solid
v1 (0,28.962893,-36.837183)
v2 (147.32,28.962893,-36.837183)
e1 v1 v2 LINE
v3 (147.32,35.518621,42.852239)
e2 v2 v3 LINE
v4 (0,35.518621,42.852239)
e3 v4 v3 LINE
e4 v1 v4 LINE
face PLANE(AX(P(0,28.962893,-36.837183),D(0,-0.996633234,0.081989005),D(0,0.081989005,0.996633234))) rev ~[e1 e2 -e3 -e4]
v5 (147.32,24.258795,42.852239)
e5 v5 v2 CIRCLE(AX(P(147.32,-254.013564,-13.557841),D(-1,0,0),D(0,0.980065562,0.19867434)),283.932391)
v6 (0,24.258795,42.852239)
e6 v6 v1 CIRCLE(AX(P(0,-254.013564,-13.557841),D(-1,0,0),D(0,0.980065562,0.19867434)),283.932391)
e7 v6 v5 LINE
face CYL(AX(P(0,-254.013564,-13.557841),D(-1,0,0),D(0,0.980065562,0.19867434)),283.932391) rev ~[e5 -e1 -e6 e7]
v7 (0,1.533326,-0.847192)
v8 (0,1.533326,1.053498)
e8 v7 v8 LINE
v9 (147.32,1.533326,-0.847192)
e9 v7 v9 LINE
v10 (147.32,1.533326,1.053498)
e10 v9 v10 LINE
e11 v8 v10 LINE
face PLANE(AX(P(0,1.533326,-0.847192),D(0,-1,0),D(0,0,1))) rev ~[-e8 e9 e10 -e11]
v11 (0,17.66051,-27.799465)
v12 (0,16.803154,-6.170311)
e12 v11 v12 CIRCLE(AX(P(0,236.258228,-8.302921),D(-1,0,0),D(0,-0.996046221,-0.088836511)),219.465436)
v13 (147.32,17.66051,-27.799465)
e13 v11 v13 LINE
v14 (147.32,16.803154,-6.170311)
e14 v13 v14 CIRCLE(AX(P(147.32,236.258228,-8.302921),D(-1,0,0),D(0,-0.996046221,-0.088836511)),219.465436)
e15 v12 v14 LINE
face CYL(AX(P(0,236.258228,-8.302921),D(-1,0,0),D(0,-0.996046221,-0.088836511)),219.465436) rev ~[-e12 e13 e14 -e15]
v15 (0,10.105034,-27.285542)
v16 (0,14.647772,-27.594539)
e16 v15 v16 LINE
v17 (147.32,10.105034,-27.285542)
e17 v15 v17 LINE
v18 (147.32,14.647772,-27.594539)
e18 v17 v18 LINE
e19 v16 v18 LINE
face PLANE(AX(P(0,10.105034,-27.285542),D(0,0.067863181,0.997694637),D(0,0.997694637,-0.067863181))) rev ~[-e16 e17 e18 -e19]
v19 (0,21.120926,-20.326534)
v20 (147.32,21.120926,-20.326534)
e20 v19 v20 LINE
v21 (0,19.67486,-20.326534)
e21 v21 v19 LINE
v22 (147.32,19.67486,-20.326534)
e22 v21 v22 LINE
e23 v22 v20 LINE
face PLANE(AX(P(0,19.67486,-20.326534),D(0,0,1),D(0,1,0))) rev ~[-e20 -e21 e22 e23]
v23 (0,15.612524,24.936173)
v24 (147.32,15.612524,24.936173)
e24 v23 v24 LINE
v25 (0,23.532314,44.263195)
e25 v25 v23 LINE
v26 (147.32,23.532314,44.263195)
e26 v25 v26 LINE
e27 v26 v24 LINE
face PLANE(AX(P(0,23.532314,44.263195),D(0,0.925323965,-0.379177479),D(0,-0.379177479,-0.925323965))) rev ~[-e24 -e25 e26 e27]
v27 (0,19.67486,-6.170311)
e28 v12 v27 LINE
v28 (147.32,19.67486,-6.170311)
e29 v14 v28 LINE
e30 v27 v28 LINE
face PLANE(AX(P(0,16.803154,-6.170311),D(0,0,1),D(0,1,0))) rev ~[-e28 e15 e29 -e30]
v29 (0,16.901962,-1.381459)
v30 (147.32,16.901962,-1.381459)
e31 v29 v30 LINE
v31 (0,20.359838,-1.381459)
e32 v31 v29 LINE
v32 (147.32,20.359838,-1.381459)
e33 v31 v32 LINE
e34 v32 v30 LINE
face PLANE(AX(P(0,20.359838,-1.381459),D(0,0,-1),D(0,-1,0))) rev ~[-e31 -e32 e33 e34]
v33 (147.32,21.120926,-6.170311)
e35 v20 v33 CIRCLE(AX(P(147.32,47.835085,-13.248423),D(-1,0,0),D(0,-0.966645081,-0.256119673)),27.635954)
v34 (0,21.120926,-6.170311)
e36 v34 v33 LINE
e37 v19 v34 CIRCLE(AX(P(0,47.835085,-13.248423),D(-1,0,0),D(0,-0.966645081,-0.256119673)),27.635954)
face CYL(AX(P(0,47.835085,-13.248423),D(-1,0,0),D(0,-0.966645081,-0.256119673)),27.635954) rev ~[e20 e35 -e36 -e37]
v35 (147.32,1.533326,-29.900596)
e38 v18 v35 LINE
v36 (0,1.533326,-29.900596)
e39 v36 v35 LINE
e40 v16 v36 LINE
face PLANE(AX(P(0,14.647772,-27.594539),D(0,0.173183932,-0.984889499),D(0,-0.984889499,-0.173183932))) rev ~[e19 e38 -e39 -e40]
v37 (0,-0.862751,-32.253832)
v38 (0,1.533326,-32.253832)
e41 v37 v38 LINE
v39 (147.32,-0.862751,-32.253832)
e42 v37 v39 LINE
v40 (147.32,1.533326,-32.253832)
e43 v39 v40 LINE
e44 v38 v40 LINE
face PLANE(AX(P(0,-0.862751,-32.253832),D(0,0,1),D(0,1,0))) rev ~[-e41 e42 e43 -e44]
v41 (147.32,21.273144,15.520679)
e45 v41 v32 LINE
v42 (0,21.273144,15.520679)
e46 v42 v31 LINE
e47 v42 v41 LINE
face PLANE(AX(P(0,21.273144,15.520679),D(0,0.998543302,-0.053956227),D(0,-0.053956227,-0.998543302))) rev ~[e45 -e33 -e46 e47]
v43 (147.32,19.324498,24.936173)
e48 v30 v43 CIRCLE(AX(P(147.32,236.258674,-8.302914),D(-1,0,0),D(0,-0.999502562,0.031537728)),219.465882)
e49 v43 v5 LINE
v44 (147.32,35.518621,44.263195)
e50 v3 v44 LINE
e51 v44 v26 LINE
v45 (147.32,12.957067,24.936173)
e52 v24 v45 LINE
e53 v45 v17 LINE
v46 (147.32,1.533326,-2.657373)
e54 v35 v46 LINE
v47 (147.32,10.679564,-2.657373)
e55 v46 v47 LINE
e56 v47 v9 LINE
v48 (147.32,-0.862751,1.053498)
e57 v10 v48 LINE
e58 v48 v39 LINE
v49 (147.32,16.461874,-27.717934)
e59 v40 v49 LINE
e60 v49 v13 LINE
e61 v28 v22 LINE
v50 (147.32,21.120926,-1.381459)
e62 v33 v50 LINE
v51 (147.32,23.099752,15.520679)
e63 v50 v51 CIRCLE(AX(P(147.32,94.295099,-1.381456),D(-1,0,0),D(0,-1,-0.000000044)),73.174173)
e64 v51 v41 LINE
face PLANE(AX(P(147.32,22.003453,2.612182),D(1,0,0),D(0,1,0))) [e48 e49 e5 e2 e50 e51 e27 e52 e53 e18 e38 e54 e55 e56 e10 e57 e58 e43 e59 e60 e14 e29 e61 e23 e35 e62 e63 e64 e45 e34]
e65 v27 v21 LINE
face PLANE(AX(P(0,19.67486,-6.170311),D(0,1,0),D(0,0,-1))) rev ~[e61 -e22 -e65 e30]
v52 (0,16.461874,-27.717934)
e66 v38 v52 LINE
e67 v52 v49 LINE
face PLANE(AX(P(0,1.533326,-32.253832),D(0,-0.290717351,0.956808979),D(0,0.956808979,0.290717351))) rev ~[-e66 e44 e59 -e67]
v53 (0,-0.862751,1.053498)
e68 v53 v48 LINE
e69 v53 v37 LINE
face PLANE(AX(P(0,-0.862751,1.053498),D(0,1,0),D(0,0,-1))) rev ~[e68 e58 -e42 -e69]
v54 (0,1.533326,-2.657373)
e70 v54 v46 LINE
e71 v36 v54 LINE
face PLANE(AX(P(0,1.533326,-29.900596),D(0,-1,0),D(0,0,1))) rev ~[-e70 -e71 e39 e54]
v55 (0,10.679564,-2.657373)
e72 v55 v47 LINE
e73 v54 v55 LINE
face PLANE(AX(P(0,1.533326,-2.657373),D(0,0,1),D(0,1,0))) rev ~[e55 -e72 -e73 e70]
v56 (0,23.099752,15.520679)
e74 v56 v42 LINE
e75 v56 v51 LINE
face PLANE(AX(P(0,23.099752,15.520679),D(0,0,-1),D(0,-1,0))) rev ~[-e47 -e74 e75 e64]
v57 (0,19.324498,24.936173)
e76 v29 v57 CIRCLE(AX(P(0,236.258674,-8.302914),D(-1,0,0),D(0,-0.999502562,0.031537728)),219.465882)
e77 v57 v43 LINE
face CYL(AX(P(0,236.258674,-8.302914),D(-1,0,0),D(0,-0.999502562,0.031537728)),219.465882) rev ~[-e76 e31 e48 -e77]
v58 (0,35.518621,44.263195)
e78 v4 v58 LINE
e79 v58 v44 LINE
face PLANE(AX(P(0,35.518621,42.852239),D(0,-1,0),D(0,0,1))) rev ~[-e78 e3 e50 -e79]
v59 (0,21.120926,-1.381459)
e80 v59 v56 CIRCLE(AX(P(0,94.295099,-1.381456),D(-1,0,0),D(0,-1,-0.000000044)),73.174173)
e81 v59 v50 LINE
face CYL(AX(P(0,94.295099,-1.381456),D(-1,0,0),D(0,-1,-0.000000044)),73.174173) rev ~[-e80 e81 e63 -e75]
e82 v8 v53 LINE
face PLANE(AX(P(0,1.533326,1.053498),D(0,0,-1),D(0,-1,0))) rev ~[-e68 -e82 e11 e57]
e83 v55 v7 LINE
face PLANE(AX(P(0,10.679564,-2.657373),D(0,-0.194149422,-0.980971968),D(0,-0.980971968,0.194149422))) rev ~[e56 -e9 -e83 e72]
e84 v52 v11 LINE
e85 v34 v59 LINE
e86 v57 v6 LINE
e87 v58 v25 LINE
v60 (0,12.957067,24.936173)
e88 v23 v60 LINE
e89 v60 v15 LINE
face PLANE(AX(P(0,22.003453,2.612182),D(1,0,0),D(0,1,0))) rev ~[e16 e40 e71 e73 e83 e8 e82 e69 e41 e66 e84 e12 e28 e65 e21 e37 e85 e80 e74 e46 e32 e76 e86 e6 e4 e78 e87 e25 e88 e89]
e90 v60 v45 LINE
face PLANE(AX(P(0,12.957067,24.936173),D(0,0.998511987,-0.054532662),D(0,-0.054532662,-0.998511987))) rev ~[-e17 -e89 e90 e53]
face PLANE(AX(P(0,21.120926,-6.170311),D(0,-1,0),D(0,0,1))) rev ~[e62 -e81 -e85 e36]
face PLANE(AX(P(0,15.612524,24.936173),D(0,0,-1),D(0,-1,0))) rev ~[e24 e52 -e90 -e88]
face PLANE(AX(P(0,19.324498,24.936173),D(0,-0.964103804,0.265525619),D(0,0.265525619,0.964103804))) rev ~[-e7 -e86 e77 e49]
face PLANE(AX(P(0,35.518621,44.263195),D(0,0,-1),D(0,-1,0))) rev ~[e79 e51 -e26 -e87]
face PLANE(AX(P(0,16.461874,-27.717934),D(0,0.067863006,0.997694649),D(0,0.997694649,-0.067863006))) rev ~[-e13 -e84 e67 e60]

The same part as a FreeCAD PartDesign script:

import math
import FreeCAD as App
import Part
import Sketcher
from FreeCAD import Vector
Q = App.Units.Quantity

doc = App.newDocument("Part")
params = doc.addObject("Spreadsheet::Sheet", "Params")
for row, (alias, value) in enumerate([
    ("pad1_length", "5.8 in"),
], start=1):
    params.set(f"A{row}", alias)
    params.set(f"B{row}", "=" + value)
    params.setAlias(f"B{row}", alias)

body = doc.addObject("PartDesign::Body", "Body")

sketch1 = body.newObject("Sketcher::SketchObject", "Sketch")
sketch1.AttachmentSupport = (doc.getObject("YZ_Plane"), [""])
sketch1.MapMode = "FlatFace"
sketch1.addGeometry(Part.ArcOfCircle(Part.Circle(Vector(-254, -13.6, 0), Vector(0, 0, 1), 283.9), math.radians(-4.7), math.radians(11.46)), False)
sketch1.addGeometry(Part.LineSegment(Vector(29, -36.8, 0), Vector(35.5, 42.9, 0)), False)
sketch1.addGeometry(Part.LineSegment(Vector(35.5, 42.9, 0), Vector(35.5, 44.3, 0)), False)
sketch1.addGeometry(Part.LineSegment(Vector(35.5, 44.3, 0), Vector(23.5, 44.3, 0)), False)
sketch1.addGeometry(Part.LineSegment(Vector(23.5, 44.3, 0), Vector(15.6, 24.9, 0)), False)
sketch1.addGeometry(Part.LineSegment(Vector(15.6, 24.9, 0), Vector(13, 24.9, 0)), False)
sketch1.addGeometry(Part.LineSegment(Vector(13, 24.9, 0), Vector(10.1, -27.3, 0)), False)
sketch1.addGeometry(Part.LineSegment(Vector(10.1, -27.3, 0), Vector(14.6, -27.6, 0)), False)
sketch1.addGeometry(Part.LineSegment(Vector(14.6, -27.6, 0), Vector(1.5, -29.9, 0)), False)
sketch1.addGeometry(Part.LineSegment(Vector(1.5, -29.9, 0), Vector(1.5, -2.7, 0)), False)
sketch1.addGeometry(Part.LineSegment(Vector(1.5, -2.7, 0), Vector(10.7, -2.7, 0)), False)
sketch1.addGeometry(Part.LineSegment(Vector(10.7, -2.7, 0), Vector(1.5, -0.8, 0)), False)
sketch1.addGeometry(Part.LineSegment(Vector(1.5, -0.8, 0), Vector(1.5, 1.1, 0)), False)
sketch1.addGeometry(Part.LineSegment(Vector(1.5, 1.1, 0), Vector(-0.9, 1.1, 0)), False)
sketch1.addGeometry(Part.LineSegment(Vector(-0.9, 1.1, 0), Vector(-0.9, -32.3, 0)), False)
sketch1.addGeometry(Part.LineSegment(Vector(-0.9, -32.3, 0), Vector(1.5, -32.3, 0)), False)
sketch1.addGeometry(Part.LineSegment(Vector(1.5, -32.3, 0), Vector(16.5, -27.7, 0)), False)
sketch1.addGeometry(Part.LineSegment(Vector(16.5, -27.7, 0), Vector(17.7, -27.8, 0)), False)
sketch1.addGeometry(Part.ArcOfCircle(Part.Circle(Vector(236.3, -8.3, 0), Vector(0, 0, 1), 219.5), math.radians(179.44), math.radians(185.1)), False)
sketch1.addGeometry(Part.LineSegment(Vector(16.8, -6.2, 0), Vector(19.7, -6.2, 0)), False)
sketch1.addGeometry(Part.LineSegment(Vector(19.7, -6.2, 0), Vector(19.7, -20.3, 0)), False)
sketch1.addGeometry(Part.LineSegment(Vector(19.7, -20.3, 0), Vector(21.1, -20.3, 0)), False)
sketch1.addGeometry(Part.ArcOfCircle(Part.Circle(Vector(47.8, -13.2, 0), Vector(0, 0, 1), 27.6), math.radians(165), math.radians(195)), False)
sketch1.addGeometry(Part.LineSegment(Vector(21.1, -6.2, 0), Vector(21.1, -1.4, 0)), False)
sketch1.addGeometry(Part.ArcOfCircle(Part.Circle(Vector(94.3, -1.4, 0), Vector(0, 0, 1), 73.2), math.radians(166.64), math.radians(180)), False)
sketch1.addGeometry(Part.LineSegment(Vector(23.1, 15.5, 0), Vector(21.3, 15.5, 0)), False)
sketch1.addGeometry(Part.LineSegment(Vector(21.3, 15.5, 0), Vector(20.4, -1.4, 0)), False)
sketch1.addGeometry(Part.LineSegment(Vector(20.4, -1.4, 0), Vector(16.9, -1.4, 0)), False)
sketch1.addGeometry(Part.ArcOfCircle(Part.Circle(Vector(236.3, -8.3, 0), Vector(0, 0, 1), 219.5), math.radians(171.29), math.radians(178.19)), False)
sketch1.addGeometry(Part.LineSegment(Vector(19.3, 24.9, 0), Vector(24.3, 42.9, 0)), False)
sketch1.addConstraint(Sketcher.Constraint("Tangent", 0, 1, 1, 1))
sketch1.addConstraint(Sketcher.Constraint("Coincident", 1, 2, 2, 1))
sketch1.addConstraint(Sketcher.Constraint("Coincident", 2, 2, 3, 1))
sketch1.addConstraint(Sketcher.Constraint("Coincident", 3, 2, 4, 1))
sketch1.addConstraint(Sketcher.Constraint("Coincident", 4, 2, 5, 1))
sketch1.addConstraint(Sketcher.Constraint("Coincident", 5, 2, 6, 1))
sketch1.addConstraint(Sketcher.Constraint("Coincident", 6, 2, 7, 1))
sketch1.addConstraint(Sketcher.Constraint("Coincident", 7, 2, 8, 1))
sketch1.addConstraint(Sketcher.Constraint("Coincident", 8, 2, 9, 1))
sketch1.addConstraint(Sketcher.Constraint("Coincident", 9, 2, 10, 1))
sketch1.addConstraint(Sketcher.Constraint("Coincident", 10, 2, 11, 1))
sketch1.addConstraint(Sketcher.Constraint("Coincident", 11, 2, 12, 1))
sketch1.addConstraint(Sketcher.Constraint("Coincident", 12, 2, 13, 1))
sketch1.addConstraint(Sketcher.Constraint("Coincident", 13, 2, 14, 1))
sketch1.addConstraint(Sketcher.Constraint("Coincident", 14, 2, 15, 1))
sketch1.addConstraint(Sketcher.Constraint("Coincident", 15, 2, 16, 1))
sketch1.addConstraint(Sketcher.Constraint("Coincident", 16, 2, 17, 1))
sketch1.addConstraint(Sketcher.Constraint("Coincident", 17, 2, 18, 2))
sketch1.addConstraint(Sketcher.Constraint("Coincident", 18, 1, 19, 1))
sketch1.addConstraint(Sketcher.Constraint("Coincident", 19, 2, 20, 1))
sketch1.addConstraint(Sketcher.Constraint("Coincident", 20, 2, 21, 1))
sketch1.addConstraint(Sketcher.Constraint("Coincident", 21, 2, 22, 2))
sketch1.addConstraint(Sketcher.Constraint("Coincident", 22, 1, 23, 1))
sketch1.addConstraint(Sketcher.Constraint("Tangent", 23, 2, 24, 2))
sketch1.addConstraint(Sketcher.Constraint("Coincident", 24, 1, 25, 1))
sketch1.addConstraint(Sketcher.Constraint("Coincident", 25, 2, 26, 1))
sketch1.addConstraint(Sketcher.Constraint("Coincident", 26, 2, 27, 1))
sketch1.addConstraint(Sketcher.Constraint("Coincident", 27, 2, 28, 2))
sketch1.addConstraint(Sketcher.Constraint("Coincident", 28, 1, 29, 1))
sketch1.addConstraint(Sketcher.Constraint("Coincident", 29, 2, 0, 2))
sketch1.addConstraint(Sketcher.Constraint("Vertical", 2))
sketch1.addConstraint(Sketcher.Constraint("Horizontal", 3))
sketch1.addConstraint(Sketcher.Constraint("Horizontal", 5))
sketch1.addConstraint(Sketcher.Constraint("Vertical", 9))
sketch1.addConstraint(Sketcher.Constraint("Horizontal", 10))
sketch1.addConstraint(Sketcher.Constraint("Vertical", 12))
sketch1.addConstraint(Sketcher.Constraint("Horizontal", 13))
sketch1.addConstraint(Sketcher.Constraint("Vertical", 14))
sketch1.addConstraint(Sketcher.Constraint("Horizontal", 15))
sketch1.addConstraint(Sketcher.Constraint("Horizontal", 19))
sketch1.addConstraint(Sketcher.Constraint("Vertical", 20))
sketch1.addConstraint(Sketcher.Constraint("Horizontal", 21))
sketch1.addConstraint(Sketcher.Constraint("Vertical", 23))
sketch1.addConstraint(Sketcher.Constraint("Horizontal", 25))
sketch1.addConstraint(Sketcher.Constraint("Horizontal", 27))
sketch1.addConstraint(Sketcher.Constraint("Parallel", 7, 17))
sketch1.addConstraint(Sketcher.Constraint("Horizontal", 19, 2, 22, 1))
sketch1.addConstraint(Sketcher.Constraint("Horizontal", 23, 2, 26, 2))
sketch1.addConstraint(Sketcher.Constraint("Horizontal", 5, 2, 28, 1))
sketch1.addConstraint(Sketcher.Constraint("Horizontal", 1, 2, 29, 2))
sketch1.addConstraint(Sketcher.Constraint("Vertical", 9, 2, 11, 2))
sketch1.addConstraint(Sketcher.Constraint("Vertical", 12, 2, 15, 2))
sketch1.addConstraint(Sketcher.Constraint("Vertical", 21, 2, 22, 1))
sketch1.addConstraint(Sketcher.Constraint("Radius", 0, 283.932391))
sketch1.addConstraint(Sketcher.Constraint("DistanceY", 16, 2, 20, 2, Q("0.291 in")))
sketch1.addConstraint(Sketcher.Constraint("Radius", 18, 219.465436))
sketch1.addConstraint(Sketcher.Constraint("Radius", 22, 27.635954))
sketch1.addConstraint(Sketcher.Constraint("Radius", 24, 73.174173))
sketch1.addConstraint(Sketcher.Constraint("Radius", 28, 219.465882))
sketch1.addConstraint(Sketcher.Constraint("DistanceX", 1, 2, 22, 3, Q("0.4849002 in")))
sketch1.addConstraint(Sketcher.Constraint("DistanceX", 25, 2, 25, 1, 1.826608))
sketch1.addConstraint(Sketcher.Constraint("DistanceY", 12, 1, 12, 2, 1.90069))
sketch1.addConstraint(Sketcher.Constraint("DistanceY", 14, 2, 14, 1, 33.30733))
sketch1.addConstraint(Sketcher.Constraint("DistanceX", -1, 1, 24, 3, 94.295099))
sketch1.addConstraint(Sketcher.Constraint("DistanceX", -1, 1, 28, 1, 19.324498))
sketch1.addConstraint(Sketcher.Constraint("DistanceY", 22, 3, 18, 3, 4.945501))
sketch1.addConstraint(Sketcher.Constraint("DistanceY", 15, 2, 16, 2, 4.535898))
sketch1.addConstraint(Sketcher.Constraint("DistanceX", 10, 2, 27, 2, 6.222398))
sketch1.addConstraint(Sketcher.Constraint("Distance", 11, 9.323649))
sketch1.addConstraint(Sketcher.Constraint("Distance", 29, 18.58313))
sketch1.addConstraint(Sketcher.Constraint("DistanceX", 3, 2, 3, 1, 11.986307))
sketch1.addConstraint(Sketcher.Constraint("DistanceX", 5, 2, 5, 1, 2.655457))
sketch1.addConstraint(Sketcher.Constraint("DistanceX", 10, 1, 10, 2, 9.146238))
sketch1.addConstraint(Sketcher.Constraint("DistanceX", 13, 2, 13, 1, 2.396077))
sketch1.addConstraint(Sketcher.Constraint("DistanceX", 19, 1, 19, 2, 2.871706))
sketch1.addConstraint(Sketcher.Constraint("DistanceX", 21, 1, 21, 2, 1.446066))
sketch1.addConstraint(Sketcher.Constraint("DistanceX", 27, 2, 27, 1, 3.457876))
sketch1.addConstraint(Sketcher.Constraint("DistanceY", 2, 1, 2, 2, 1.410956))
sketch1.addConstraint(Sketcher.Constraint("DistanceY", 9, 1, 9, 2, 27.243223))
sketch1.addConstraint(Sketcher.Constraint("DistanceY", 20, 2, 20, 1, 14.156223))
sketch1.addConstraint(Sketcher.Constraint("DistanceY", 23, 1, 23, 2, 4.788852))
sketch1.addConstraint(Sketcher.Constraint("DistanceY", 0, 3, -1, 1, 13.557841))
sketch1.addConstraint(Sketcher.Constraint("DistanceY", 18, 3, -1, 1, 8.302921))
sketch1.addConstraint(Sketcher.Constraint("DistanceY", -1, 1, 1, 2, 42.852239))
sketch1.addConstraint(Sketcher.Constraint("DistanceY", 6, 2, -1, 1, 27.285542))
sketch1.addConstraint(Sketcher.Constraint("DistanceY", 7, 2, -1, 1, 27.594539))
sketch1.addConstraint(Sketcher.Constraint("DistanceX", 13, 2, -1, 1, 0.862751))
sketch1.addConstraint(Sketcher.Constraint("DistanceX", -1, 1, 17, 2, 17.66051))
sketch1.addConstraint(Sketcher.Constraint("DistanceY", -1, 1, 24, 1, 15.520679))
sketch1.addConstraint(Sketcher.Constraint("DistanceX", 0, 3, 18, 3, 490.271792))
sketch1.addConstraint(Sketcher.Constraint("DistanceX", 4, 2, 3, 2, 7.91979))
sketch1.addConstraint(Sketcher.Constraint("DistanceX", 6, 2, 0, 1, 18.857859))
sketch1.addConstraint(Sketcher.Constraint("DistanceX", 7, 2, 0, 1, 14.315121))
pad1 = body.newObject("PartDesign::Pad", "Pad")
pad1.Profile = sketch1
pad1.setExpression("Length", "Params.pad1_length")

doc.recompute()
